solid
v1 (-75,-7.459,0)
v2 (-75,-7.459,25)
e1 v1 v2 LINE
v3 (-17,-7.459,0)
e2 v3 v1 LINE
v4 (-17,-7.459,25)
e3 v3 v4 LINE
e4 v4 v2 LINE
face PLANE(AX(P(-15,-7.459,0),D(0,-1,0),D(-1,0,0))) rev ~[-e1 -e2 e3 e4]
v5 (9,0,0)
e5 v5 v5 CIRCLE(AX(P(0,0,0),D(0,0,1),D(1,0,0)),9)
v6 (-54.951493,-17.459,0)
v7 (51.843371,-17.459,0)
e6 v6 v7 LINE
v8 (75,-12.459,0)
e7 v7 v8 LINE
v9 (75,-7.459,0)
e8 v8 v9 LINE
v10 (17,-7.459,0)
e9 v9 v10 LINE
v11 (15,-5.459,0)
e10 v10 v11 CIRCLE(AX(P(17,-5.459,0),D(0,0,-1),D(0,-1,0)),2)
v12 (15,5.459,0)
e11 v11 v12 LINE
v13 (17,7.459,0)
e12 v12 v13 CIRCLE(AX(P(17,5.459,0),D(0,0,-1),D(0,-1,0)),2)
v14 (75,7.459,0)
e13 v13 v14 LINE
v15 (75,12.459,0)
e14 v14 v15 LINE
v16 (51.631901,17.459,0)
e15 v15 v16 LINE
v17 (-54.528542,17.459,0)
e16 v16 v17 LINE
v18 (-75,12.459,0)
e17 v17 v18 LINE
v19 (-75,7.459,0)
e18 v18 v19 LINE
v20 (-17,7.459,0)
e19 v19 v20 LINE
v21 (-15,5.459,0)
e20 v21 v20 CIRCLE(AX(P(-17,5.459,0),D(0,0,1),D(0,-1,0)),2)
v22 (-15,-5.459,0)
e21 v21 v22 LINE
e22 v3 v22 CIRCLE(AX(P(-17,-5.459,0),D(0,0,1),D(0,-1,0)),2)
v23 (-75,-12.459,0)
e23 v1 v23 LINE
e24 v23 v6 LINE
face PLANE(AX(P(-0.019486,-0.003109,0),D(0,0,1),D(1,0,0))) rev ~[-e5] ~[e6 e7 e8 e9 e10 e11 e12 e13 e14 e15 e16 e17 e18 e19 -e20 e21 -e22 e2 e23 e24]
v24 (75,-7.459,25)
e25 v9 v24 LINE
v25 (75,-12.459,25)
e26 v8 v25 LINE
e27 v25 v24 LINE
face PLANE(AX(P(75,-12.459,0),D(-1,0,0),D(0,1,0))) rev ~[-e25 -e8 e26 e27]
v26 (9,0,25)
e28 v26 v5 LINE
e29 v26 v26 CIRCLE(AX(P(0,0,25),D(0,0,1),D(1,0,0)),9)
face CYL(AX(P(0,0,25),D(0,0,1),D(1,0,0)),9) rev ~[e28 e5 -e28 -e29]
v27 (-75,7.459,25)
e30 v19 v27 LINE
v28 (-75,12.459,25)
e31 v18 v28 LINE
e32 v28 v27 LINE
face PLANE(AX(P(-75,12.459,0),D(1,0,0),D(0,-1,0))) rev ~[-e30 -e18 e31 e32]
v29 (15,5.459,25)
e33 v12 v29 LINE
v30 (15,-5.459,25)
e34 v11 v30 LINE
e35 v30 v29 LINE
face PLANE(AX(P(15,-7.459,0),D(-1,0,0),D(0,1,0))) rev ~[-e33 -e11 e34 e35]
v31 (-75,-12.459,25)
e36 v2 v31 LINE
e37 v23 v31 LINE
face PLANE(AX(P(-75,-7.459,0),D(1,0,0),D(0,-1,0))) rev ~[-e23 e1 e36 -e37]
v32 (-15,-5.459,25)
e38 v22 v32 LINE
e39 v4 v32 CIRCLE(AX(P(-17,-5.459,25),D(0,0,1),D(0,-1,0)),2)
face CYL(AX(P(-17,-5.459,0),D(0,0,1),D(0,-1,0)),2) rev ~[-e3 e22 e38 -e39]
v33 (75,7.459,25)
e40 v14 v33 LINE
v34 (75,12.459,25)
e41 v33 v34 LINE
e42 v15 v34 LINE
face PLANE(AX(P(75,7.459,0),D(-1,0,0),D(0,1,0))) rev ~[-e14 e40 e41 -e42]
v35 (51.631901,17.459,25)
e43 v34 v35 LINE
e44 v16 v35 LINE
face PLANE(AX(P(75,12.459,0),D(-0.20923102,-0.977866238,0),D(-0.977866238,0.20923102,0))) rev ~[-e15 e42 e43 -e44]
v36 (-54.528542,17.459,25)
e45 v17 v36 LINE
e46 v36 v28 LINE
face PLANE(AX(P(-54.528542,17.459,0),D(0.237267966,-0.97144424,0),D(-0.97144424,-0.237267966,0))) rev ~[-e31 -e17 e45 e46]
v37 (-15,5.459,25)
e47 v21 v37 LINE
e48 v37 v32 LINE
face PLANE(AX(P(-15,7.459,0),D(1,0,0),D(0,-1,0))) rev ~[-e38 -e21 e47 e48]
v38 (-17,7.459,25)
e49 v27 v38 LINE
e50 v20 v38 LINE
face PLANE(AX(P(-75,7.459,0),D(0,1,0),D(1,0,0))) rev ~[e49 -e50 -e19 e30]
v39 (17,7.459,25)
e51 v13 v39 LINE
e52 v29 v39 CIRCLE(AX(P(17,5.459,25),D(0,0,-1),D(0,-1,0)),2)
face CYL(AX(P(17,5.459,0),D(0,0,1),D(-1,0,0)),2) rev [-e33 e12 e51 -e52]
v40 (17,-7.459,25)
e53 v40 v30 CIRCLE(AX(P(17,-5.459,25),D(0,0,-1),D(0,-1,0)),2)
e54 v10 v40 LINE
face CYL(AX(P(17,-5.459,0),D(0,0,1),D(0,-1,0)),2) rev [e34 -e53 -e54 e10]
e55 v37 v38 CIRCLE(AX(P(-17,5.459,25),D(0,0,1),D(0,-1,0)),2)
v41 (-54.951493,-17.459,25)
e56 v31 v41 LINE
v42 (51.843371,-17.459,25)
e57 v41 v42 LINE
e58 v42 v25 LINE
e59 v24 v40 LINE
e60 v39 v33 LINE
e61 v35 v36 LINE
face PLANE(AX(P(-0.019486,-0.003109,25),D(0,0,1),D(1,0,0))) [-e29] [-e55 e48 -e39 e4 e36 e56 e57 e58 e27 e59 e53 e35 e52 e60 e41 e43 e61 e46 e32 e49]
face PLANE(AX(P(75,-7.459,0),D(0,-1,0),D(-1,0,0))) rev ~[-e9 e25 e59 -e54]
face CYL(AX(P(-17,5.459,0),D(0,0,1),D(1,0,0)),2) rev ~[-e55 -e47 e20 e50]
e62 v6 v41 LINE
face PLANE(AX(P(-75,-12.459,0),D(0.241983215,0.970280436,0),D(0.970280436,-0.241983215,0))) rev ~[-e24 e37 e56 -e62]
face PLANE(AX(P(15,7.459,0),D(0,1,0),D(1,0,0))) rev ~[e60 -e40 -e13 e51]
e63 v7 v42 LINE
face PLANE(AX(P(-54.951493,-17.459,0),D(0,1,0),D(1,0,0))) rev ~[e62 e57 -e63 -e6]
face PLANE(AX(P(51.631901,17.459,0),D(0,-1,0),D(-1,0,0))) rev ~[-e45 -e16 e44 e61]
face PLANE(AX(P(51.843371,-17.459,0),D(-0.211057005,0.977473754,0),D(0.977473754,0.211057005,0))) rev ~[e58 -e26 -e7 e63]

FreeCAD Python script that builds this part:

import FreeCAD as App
import Part
import Sketcher

V = App.Vector
Q = App.Units.Quantity


def edges_at(feature, points):
    """Names of the edges that pass closest to the given points."""
    edges = feature.Shape.Edges
    near = lambda p: min(range(len(edges)), key=lambda i: edges[i].distToShape(Part.Vertex(*p))[0])
    return sorted({f"Edge{near(p) + 1}" for p in points})

doc = App.newDocument("Part")
body = doc.addObject("PartDesign::Body", "Body")

# Sketch on XY plane
sketch1 = doc.addObject("Sketcher::SketchObject", "Sketch")
body.addObject(sketch1)
sketch1.AttachmentSupport = (doc.XY_Plane, [""])
sketch1.MapMode = "FlatFace"
sketch1.addGeometry(Part.LineSegment(V(-15, -7.459, 0), V(-75, -7.459, 0)), False)
sketch1.addGeometry(Part.LineSegment(V(-75, -7.459, 0), V(-75, -12.459, 0)), False)
sketch1.addGeometry(Part.LineSegment(V(-75, -12.459, 0), V(-54.951493, -17.459, 0)), False)
sketch1.addGeometry(Part.LineSegment(V(-54.951493, -17.459, 0), V(51.843371, -17.459, 0)), False)
sketch1.addGeometry(Part.LineSegment(V(51.843371, -17.459, 0), V(75, -12.459, 0)), False)
sketch1.addGeometry(Part.LineSegment(V(75, -12.459, 0), V(75, -7.459, 0)), False)
sketch1.addGeometry(Part.LineSegment(V(75, -7.459, 0), V(15, -7.459, 0)), False)
sketch1.addGeometry(Part.LineSegment(V(15, -7.459, 0), V(15, 7.459, 0)), False)
sketch1.addGeometry(Part.LineSegment(V(15, 7.459, 0), V(75, 7.459, 0)), False)
sketch1.addGeometry(Part.LineSegment(V(75, 7.459, 0), V(75, 12.459, 0)), False)
sketch1.addGeometry(Part.LineSegment(V(75, 12.459, 0), V(51.631901, 17.459, 0)), False)
sketch1.addGeometry(Part.LineSegment(V(51.631901, 17.459, 0), V(-54.528542, 17.459, 0)), False)
sketch1.addGeometry(Part.LineSegment(V(-54.528542, 17.459, 0), V(-75, 12.459, 0)), False)
sketch1.addGeometry(Part.LineSegment(V(-75, 12.459, 0), V(-75, 7.459, 0)), False)
sketch1.addGeometry(Part.LineSegment(V(-75, 7.459, 0), V(-15, 7.459, 0)), False)
sketch1.addGeometry(Part.LineSegment(V(-15, 7.459, 0), V(-15, -7.459, 0)), False)
sketch1.addConstraint(Sketcher.Constraint("Coincident", 0, 2, 1, 1))
sketch1.addConstraint(Sketcher.Constraint("Coincident", 1, 2, 2, 1))
sketch1.addConstraint(Sketcher.Constraint("Coincident", 2, 2, 3, 1))
sketch1.addConstraint(Sketcher.Constraint("Coincident", 3, 2, 4, 1))
sketch1.addConstraint(Sketcher.Constraint("Coincident", 4, 2, 5, 1))
sketch1.addConstraint(Sketcher.Constraint("Coincident", 5, 2, 6, 1))
sketch1.addConstraint(Sketcher.Constraint("Coincident", 6, 2, 7, 1))
sketch1.addConstraint(Sketcher.Constraint("Coincident", 7, 2, 8, 1))
sketch1.addConstraint(Sketcher.Constraint("Coincident", 8, 2, 9, 1))
sketch1.addConstraint(Sketcher.Constraint("Coincident", 9, 2, 10, 1))
sketch1.addConstraint(Sketcher.Constraint("Coincident", 10, 2, 11, 1))
sketch1.addConstraint(Sketcher.Constraint("Coincident", 11, 2, 12, 1))
sketch1.addConstraint(Sketcher.Constraint("Coincident", 12, 2, 13, 1))
sketch1.addConstraint(Sketcher.Constraint("Coincident", 13, 2, 14, 1))
sketch1.addConstraint(Sketcher.Constraint("Coincident", 14, 2, 15, 1))
sketch1.addConstraint(Sketcher.Constraint("Coincident", 15, 2, 0, 1))
sketch1.addConstraint(Sketcher.Constraint("Horizontal", 0))
sketch1.addConstraint(Sketcher.Constraint("Vertical", 1))
sketch1.addConstraint(Sketcher.Constraint("Horizontal", 3))
sketch1.addConstraint(Sketcher.Constraint("Vertical", 5))
sketch1.addConstraint(Sketcher.Constraint("Horizontal", 6))
sketch1.addConstraint(Sketcher.Constraint("Vertical", 7))
sketch1.addConstraint(Sketcher.Constraint("Horizontal", 8))
sketch1.addConstraint(Sketcher.Constraint("Vertical", 9))
sketch1.addConstraint(Sketcher.Constraint("Horizontal", 11))
sketch1.addConstraint(Sketcher.Constraint("Vertical", 13))
sketch1.addConstraint(Sketcher.Constraint("Horizontal", 14))
sketch1.addConstraint(Sketcher.Constraint("Vertical", 15))
sketch1.addConstraint(Sketcher.Constraint("Symmetric", 0, 2, 8, 2, -1, 1))
sketch1.addConstraint(Sketcher.Constraint("Symmetric", 4, 2, 12, 2, -1, 1))
sketch1.addConstraint(Sketcher.Constraint("Symmetric", 6, 2, 14, 2, -1, 1))
sketch1.addConstraint(Sketcher.Constraint("Symmetric", 1, 2, 4, 2, -2))
sketch1.addConstraint(Sketcher.Constraint("Horizontal", 0, 2, 5, 2))
sketch1.addConstraint(Sketcher.Constraint("Horizontal", 9, 2, 12, 2))
sketch1.addConstraint(Sketcher.Constraint("DistanceX", 0, 2, 0, 1, Q("60 mm")))
sketch1.addConstraint(Sketcher.Constraint("DistanceY", 1, 2, 1, 1, Q("5 mm")))
sketch1.addConstraint(Sketcher.Constraint("DistanceX", 0, 2, -1, 1, Q("75 mm")))
sketch1.addConstraint(Sketcher.Constraint("DistanceY", 2, 2, 1, 2, Q("5 mm")))
sketch1.addConstraint(Sketcher.Constraint("DistanceY", 9, 2, 10, 2, Q("5 mm")))
sketch1.addConstraint(Sketcher.Constraint("DistanceY", 7, 1, 7, 2, Q("14.918 mm")))
sketch1.addConstraint(Sketcher.Constraint("DistanceX", -1, 1, 10, 2, Q("51.631901 mm")))
sketch1.addConstraint(Sketcher.Constraint("Distance", 2, Q("20.66259 mm")))
sketch1.addConstraint(Sketcher.Constraint("Distance", 12, Q("21.07322 mm")))
sketch1.addConstraint(Sketcher.Constraint("DistanceX", 3, 1, 3, 2, Q("106.794864 mm")))
pad1 = doc.addObject("PartDesign::Pad", "Pad")
body.addObject(pad1)
pad1.Profile = sketch1
pad1.Length = 25

# Sketch on XY plane
sketch2 = doc.addObject("Sketcher::SketchObject", "Sketch001")
body.addObject(sketch2)
sketch2.AttachmentSupport = (doc.XY_Plane, [""])
sketch2.MapMode = "FlatFace"
sketch2.AttachmentOffset = App.Placement(V(0, 0, 25), App.Rotation())
sketch2.addGeometry(Part.Circle(V(0, 0, 0), V(0, 0, 1), 9), False)
sketch2.addConstraint(Sketcher.Constraint("Coincident", 0, 3, -1, 1))
sketch2.addConstraint(Sketcher.Constraint("Diameter", 0, Q("18 mm")))
pocket1 = doc.addObject("PartDesign::Pocket", "Pocket")
body.addObject(pocket1)
pocket1.Profile = sketch2
pocket1.Length = 40
doc.recompute()

fillet = doc.addObject("PartDesign::Fillet", "Fillet")
body.addObject(fillet)
fillet.Base = (pocket1, edges_at(pocket1, [
    (-15, -7.459, 12.5),
    (-15, 7.459, 12.5),
    (15, -7.459, 12.5),
    (15, 7.459, 12.5),
]))
fillet.Radius = 2

doc.recompute()
